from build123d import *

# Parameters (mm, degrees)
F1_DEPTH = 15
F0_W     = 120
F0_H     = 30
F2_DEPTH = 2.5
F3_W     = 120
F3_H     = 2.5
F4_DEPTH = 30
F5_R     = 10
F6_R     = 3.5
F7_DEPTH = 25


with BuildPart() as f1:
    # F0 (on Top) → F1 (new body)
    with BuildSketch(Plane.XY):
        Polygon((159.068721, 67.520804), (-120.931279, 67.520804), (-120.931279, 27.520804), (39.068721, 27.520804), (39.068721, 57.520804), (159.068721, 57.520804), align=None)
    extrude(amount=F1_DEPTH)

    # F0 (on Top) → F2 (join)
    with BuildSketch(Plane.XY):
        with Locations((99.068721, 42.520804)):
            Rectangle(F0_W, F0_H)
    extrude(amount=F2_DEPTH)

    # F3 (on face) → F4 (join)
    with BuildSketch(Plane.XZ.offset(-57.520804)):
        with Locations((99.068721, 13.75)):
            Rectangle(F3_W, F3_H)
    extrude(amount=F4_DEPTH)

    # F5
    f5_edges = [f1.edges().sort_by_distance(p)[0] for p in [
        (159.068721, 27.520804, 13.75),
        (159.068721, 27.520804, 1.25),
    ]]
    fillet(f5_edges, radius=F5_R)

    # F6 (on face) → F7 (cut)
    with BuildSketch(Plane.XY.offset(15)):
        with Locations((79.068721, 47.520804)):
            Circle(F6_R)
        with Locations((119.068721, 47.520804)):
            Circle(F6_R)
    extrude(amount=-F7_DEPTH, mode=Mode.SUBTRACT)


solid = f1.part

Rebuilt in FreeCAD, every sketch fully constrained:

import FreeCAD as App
import Part
import Sketcher


def edges_at(feature, points):
    """Names of the edges that pass closest to the given points."""
    edges = feature.Shape.Edges
    near = lambda p: min(range(len(edges)), key=lambda i: edges[i].distToShape(Part.Vertex(*p))[0])
    return sorted({f"Edge{near(p) + 1}" for p in points})

doc = App.newDocument("Part")
body = doc.addObject("PartDesign::Body", "Body")

# Sketch on XY plane
sketch1 = body.newObject("Sketcher::SketchObject", "Sketch")
sketch1.AttachmentSupport = (doc.getObject("XY_Plane"), [""])
sketch1.MapMode = "FlatFace"
sketch1.addGeometry([
    Part.LineSegment(App.Vector(159.068721, 67.520804, 0), App.Vector(-120.931279, 67.520804, 0)),  # 0
    Part.LineSegment(App.Vector(-120.931279, 67.520804, 0), App.Vector(-120.931279, 27.520804, 0)),  # 1
    Part.LineSegment(App.Vector(-120.931279, 27.520804, 0), App.Vector(39.068721, 27.520804, 0)),  # 2
    Part.LineSegment(App.Vector(39.068721, 27.520804, 0), App.Vector(39.068721, 57.520804, 0)),  # 3
    Part.LineSegment(App.Vector(39.068721, 57.520804, 0), App.Vector(159.068721, 57.520804, 0)),  # 4
    Part.LineSegment(App.Vector(159.068721, 57.520804, 0), App.Vector(159.068721, 67.520804, 0)),  # 5
], False)
sketch1.addConstraint([
    Sketcher.Constraint("Coincident", 0, 2, 1, 1),
    Sketcher.Constraint("Coincident", 1, 2, 2, 1),
    Sketcher.Constraint("Coincident", 2, 2, 3, 1),
    Sketcher.Constraint("Coincident", 3, 2, 4, 1),
    Sketcher.Constraint("Coincident", 4, 2, 5, 1),
    Sketcher.Constraint("Coincident", 5, 2, 0, 1),
    Sketcher.Constraint("Horizontal", 0),
    Sketcher.Constraint("Vertical", 1),
    Sketcher.Constraint("Horizontal", 2),
    Sketcher.Constraint("Vertical", 3),
    Sketcher.Constraint("Horizontal", 4),
    Sketcher.Constraint("Vertical", 5),
    Sketcher.Constraint("DistanceX", 0, 2, 0, 1, 280.0),
    Sketcher.Constraint("DistanceX", 2, 1, 2, 2, 160.0),
    Sketcher.Constraint("DistanceY", 1, 2, 1, 1, 40.0),
    Sketcher.Constraint("DistanceY", 3, 1, 3, 2, 30.0),
    Sketcher.Constraint("DistanceX", 0, 2, -1, 1, 120.931279),
    Sketcher.Constraint("DistanceY", -1, 1, 0, 2, 67.520804),
])
pad1 = body.newObject("PartDesign::Pad", "Pad")
pad1.Profile = sketch1
pad1.Length = 15

# Sketch on XY plane
sketch2 = body.newObject("Sketcher::SketchObject", "Sketch001")
sketch2.AttachmentSupport = (doc.getObject("XY_Plane"), [""])
sketch2.MapMode = "FlatFace"
sketch2.addGeometry([
    Part.LineSegment(App.Vector(39.068721, 57.520804, 0), App.Vector(39.068721, 27.520804, 0)),
    Part.LineSegment(App.Vector(39.068721, 27.520804, 0), App.Vector(159.068721, 27.520804, 0)),
    Part.LineSegment(App.Vector(159.068721, 27.520804, 0), App.Vector(159.068721, 57.520804, 0)),
    Part.LineSegment(App.Vector(159.068721, 57.520804, 0), App.Vector(39.068721, 57.520804, 0)),
], False)
sketch2.addConstraint([
    Sketcher.Constraint("Coincident", 0, 2, 1, 1),
    Sketcher.Constraint("Coincident", 1, 2, 2, 1),
    Sketcher.Constraint("Coincident", 2, 2, 3, 1),
    Sketcher.Constraint("Coincident", 3, 2, 0, 1),
    Sketcher.Constraint("Vertical", 0),
    Sketcher.Constraint("Horizontal", 1),
    Sketcher.Constraint("Vertical", 2),
    Sketcher.Constraint("Horizontal", 3),
    Sketcher.Constraint("DistanceX", 1, 1, 1, 2, 120.0),
    Sketcher.Constraint("DistanceY", 0, 2, 0, 1, 30.0),
    Sketcher.Constraint("DistanceX", -1, 1, 0, 2, 39.068721),
    Sketcher.Constraint("DistanceY", -1, 1, 0, 2, 27.520804),
])
pad2 = body.newObject("PartDesign::Pad", "Pad001")
pad2.Profile = sketch2
pad2.Length = 2.5

# Sketch on XZ plane
sketch3 = body.newObject("Sketcher::SketchObject", "Sketch002")
sketch3.AttachmentSupport = (doc.getObject("XZ_Plane"), [""])
sketch3.MapMode = "FlatFace"
sketch3.AttachmentOffset = App.Placement(App.Vector(0, 0, -57.520804), App.Rotation())
sketch3.addGeometry([
    Part.LineSegment(App.Vector(39.068721, 15, 0), App.Vector(39.068721, 12.5, 0)),
    Part.LineSegment(App.Vector(39.068721, 12.5, 0), App.Vector(159.068721, 12.5, 0)),
    Part.LineSegment(App.Vector(159.068721, 12.5, 0), App.Vector(159.068721, 15, 0)),
    Part.LineSegment(App.Vector(159.068721, 15, 0), App.Vector(39.068721, 15, 0)),
], False)
sketch3.addConstraint([
    Sketcher.Constraint("Coincident", 0, 2, 1, 1),
    Sketcher.Constraint("Coincident", 1, 2, 2, 1),
    Sketcher.Constraint("Coincident", 2, 2, 3, 1),
    Sketcher.Constraint("Coincident", 3, 2, 0, 1),
    Sketcher.Constraint("Vertical", 0),
    Sketcher.Constraint("Horizontal", 1),
    Sketcher.Constraint("Vertical", 2),
    Sketcher.Constraint("Horizontal", 3),
    Sketcher.Constraint("DistanceX", 1, 1, 1, 2, 120.0),
    Sketcher.Constraint("DistanceY", 0, 2, 0, 1, 2.5),
    Sketcher.Constraint("DistanceY", -1, 1, 2, 2, 15.0),
    Sketcher.Constraint("DistanceX", -1, 1, 0, 2, 39.068721),
])
pad3 = body.newObject("PartDesign::Pad", "Pad002")
pad3.Profile = sketch3
pad3.Length = 30
doc.recompute()

fillet = body.newObject("PartDesign::Fillet", "Fillet")
fillet.Base = (pad3, edges_at(pad3, [(159.069, 27.521, 13.75), (159.069, 27.521, 1.25)]))
fillet.Radius = 10

# Sketch on XY plane
sketch4 = body.newObject("Sketcher::SketchObject", "Sketch003")
sketch4.AttachmentSupport = (doc.getObject("XY_Plane"), [""])
sketch4.MapMode = "FlatFace"
sketch4.AttachmentOffset = App.Placement(App.Vector(0, 0, 15), App.Rotation())
sketch4.addGeometry([
    Part.Circle(App.Vector(79.068721, 47.520804, 0), App.Vector(0, 0, 1), 3.5),
    Part.Circle(App.Vector(119.068721, 47.520804, 0), App.Vector(0, 0, 1), 3.5),
], False)
sketch4.addConstraint([
    Sketcher.Constraint("Equal", 0, 1),
    Sketcher.Constraint("Horizontal", 0, 3, 1, 3),
    Sketcher.Constraint("Diameter", 0, 7.0),
    Sketcher.Constraint("DistanceX", 0, 3, 1, 3, 40.0),
    Sketcher.Constraint("DistanceX", -1, 1, 0, 3, 79.068721),
    Sketcher.Constraint("DistanceY", -1, 1, 0, 3, 47.520804),
])
pocket1 = body.newObject("PartDesign::Pocket", "Pocket")
pocket1.Profile = sketch4
pocket1.Length = 25

doc.recompute()
